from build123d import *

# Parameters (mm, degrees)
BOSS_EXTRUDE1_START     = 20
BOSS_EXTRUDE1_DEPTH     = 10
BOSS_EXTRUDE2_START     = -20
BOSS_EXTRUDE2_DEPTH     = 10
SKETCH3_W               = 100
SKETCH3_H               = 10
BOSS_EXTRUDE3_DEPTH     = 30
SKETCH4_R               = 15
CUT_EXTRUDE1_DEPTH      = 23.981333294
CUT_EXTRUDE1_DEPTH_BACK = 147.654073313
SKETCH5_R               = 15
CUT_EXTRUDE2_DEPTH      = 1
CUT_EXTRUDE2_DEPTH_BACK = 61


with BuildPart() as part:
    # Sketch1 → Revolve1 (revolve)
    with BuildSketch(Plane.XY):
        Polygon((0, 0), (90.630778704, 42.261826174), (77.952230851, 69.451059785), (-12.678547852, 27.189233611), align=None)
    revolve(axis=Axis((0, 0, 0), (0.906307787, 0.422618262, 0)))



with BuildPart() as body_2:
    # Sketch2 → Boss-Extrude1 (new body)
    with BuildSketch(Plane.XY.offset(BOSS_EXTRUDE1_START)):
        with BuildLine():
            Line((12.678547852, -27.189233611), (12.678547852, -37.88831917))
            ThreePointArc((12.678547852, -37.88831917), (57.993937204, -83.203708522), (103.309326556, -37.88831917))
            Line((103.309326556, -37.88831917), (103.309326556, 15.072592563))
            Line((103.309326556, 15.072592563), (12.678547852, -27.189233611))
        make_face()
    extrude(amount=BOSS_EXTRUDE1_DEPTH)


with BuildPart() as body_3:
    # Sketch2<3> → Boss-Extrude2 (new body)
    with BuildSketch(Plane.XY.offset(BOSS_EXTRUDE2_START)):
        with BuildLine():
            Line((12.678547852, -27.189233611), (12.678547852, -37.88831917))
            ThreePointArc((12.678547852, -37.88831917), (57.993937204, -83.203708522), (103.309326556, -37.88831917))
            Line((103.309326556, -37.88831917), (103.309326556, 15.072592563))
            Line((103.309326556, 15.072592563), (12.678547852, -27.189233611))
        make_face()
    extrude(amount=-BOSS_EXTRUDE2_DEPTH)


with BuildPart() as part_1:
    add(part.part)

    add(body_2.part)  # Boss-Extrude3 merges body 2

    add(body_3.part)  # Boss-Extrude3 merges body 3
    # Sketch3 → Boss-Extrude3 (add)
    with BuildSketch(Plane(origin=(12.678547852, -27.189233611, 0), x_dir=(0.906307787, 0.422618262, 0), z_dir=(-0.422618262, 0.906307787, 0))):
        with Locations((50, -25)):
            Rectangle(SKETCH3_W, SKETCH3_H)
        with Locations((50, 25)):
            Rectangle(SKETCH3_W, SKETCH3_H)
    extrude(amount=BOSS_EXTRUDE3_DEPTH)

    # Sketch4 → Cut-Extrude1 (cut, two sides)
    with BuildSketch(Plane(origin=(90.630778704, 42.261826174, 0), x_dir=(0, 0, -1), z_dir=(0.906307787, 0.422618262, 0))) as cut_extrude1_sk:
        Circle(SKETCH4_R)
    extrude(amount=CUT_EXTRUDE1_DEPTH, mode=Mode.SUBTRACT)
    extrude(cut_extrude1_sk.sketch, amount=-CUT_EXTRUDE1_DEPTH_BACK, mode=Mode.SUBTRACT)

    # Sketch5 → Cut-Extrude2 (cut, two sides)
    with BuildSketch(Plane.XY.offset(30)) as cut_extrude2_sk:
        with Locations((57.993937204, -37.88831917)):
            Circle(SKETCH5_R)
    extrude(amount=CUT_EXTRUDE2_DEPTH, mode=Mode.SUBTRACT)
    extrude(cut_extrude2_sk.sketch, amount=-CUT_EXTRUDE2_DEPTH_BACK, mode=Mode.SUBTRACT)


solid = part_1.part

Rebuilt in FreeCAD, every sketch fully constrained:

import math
import FreeCAD as App
import Part
import Sketcher
Q = App.Units.Quantity

doc = App.newDocument("Part")
params = doc.addObject("Spreadsheet::Sheet", "Params")
for row, (alias, value) in enumerate([
    ("sketch1_length", "100 mm"),
    ("sketch1_length2", "30 mm"),
    ("revolution_angle", "360 deg"),
    ("sketch2_length", "100 mm"),
    ("pad1_length", "10 mm"),
    ("sketch3_length", "100 mm"),
    ("pad2_length", "10 mm"),
    ("sketch4_width", "100 mm"),
    ("sketch4_height", "10 mm"),
    ("pad3_length", "30 mm"),
    ("sketch5_diameter", "30 mm"),
    ("sketch6_diameter", "30 mm"),
], start=1):
    params.set(f"A{row}", alias)
    params.set(f"B{row}", "=" + value)
    params.setAlias(f"B{row}", alias)

body = doc.addObject("PartDesign::Body", "Body")

# Sketch on XY plane
sketch1 = body.newObject("Sketcher::SketchObject", "Sketch")
sketch1.AttachmentSupport = (doc.getObject("XY_Plane"), [""])
sketch1.MapMode = "FlatFace"
sketch1.addGeometry(Part.LineSegment(App.Vector(0, 0, 0), App.Vector(91, 42, 0)), False)
sketch1.addGeometry(Part.LineSegment(App.Vector(91, 42, 0), App.Vector(78, 69, 0)), False)
sketch1.addGeometry(Part.LineSegment(App.Vector(78, 69, 0), App.Vector(-13, 27, 0)), False)
sketch1.addGeometry(Part.LineSegment(App.Vector(-13, 27, 0), App.Vector(0, 0, 0)), False)
sketch1.addGeometry(Part.LineSegment(App.Vector(0, 0, 0), App.Vector(91, 42, 0)), True)  # axis
sketch1.addConstraint(Sketcher.Constraint("Coincident", 0, 2, 1, 1))
sketch1.addConstraint(Sketcher.Constraint("Coincident", 1, 2, 2, 1))
sketch1.addConstraint(Sketcher.Constraint("Coincident", 2, 2, 3, 1))
sketch1.addConstraint(Sketcher.Constraint("Coincident", 3, 2, 0, 1))
sketch1.addConstraint(Sketcher.Constraint("Coincident", 3, 2, -1, 1))
sketch1.addConstraint(Sketcher.Constraint("Coincident", 4, 1, -1, 1))
sketch1.addConstraint(Sketcher.Constraint("Coincident", 4, 2, 0, 2))
sketch1.addConstraint(Sketcher.Constraint("Perpendicular", 0, 1))
sketch1.addConstraint(Sketcher.Constraint("Perpendicular", 1, 2))
sketch1.addConstraint(Sketcher.Constraint("Perpendicular", 2, 3))
sketch1.addConstraint(Sketcher.Constraint("Angle", 0, Q("25 deg")))
sketch1.addConstraint(Sketcher.Constraint("Distance", 0, 100.0))
sketch1.addConstraint(Sketcher.Constraint("Distance", 1, 30.0))
sketch1.setExpression("Constraints[11]", "Params.sketch1_length")
sketch1.setExpression("Constraints[12]", "Params.sketch1_length2")
revolution = body.newObject("PartDesign::Revolution", "Revolution")
revolution.Profile = sketch1
revolution.ReferenceAxis = (sketch1, ["Axis0"])
revolution.setExpression("Angle", "Params.revolution_angle")
body2 = doc.addObject("PartDesign::Body", "Body001")

# Sketch on XY plane
sketch2 = body2.newObject("Sketcher::SketchObject", "Sketch001")
sketch2.AttachmentSupport = (doc.getObject("XY_Plane001"), [""])
sketch2.MapMode = "FlatFace"
sketch2.AttachmentOffset = App.Placement(App.Vector(0, 0, 20), App.Rotation())
sketch2.addGeometry(Part.LineSegment(App.Vector(13, -27, 0), App.Vector(13, -38, 0)), False)
sketch2.addGeometry(Part.ArcOfCircle(Part.Circle(App.Vector(58, -38, 0), App.Vector(0, 0, 1), 45), math.radians(180), math.radians(360)), False)
sketch2.addGeometry(Part.LineSegment(App.Vector(103, -38, 0), App.Vector(103, 15, 0)), False)
sketch2.addGeometry(Part.LineSegment(App.Vector(103, 15, 0), App.Vector(13, -27, 0)), False)
sketch2.addConstraint(Sketcher.Constraint("Tangent", 0, 2, 1, 1))
sketch2.addConstraint(Sketcher.Constraint("Tangent", 1, 2, 2, 1))
sketch2.addConstraint(Sketcher.Constraint("Coincident", 2, 2, 3, 1))
sketch2.addConstraint(Sketcher.Constraint("Coincident", 3, 2, 0, 1))
sketch2.addConstraint(Sketcher.Constraint("Vertical", 0))
sketch2.addConstraint(Sketcher.Constraint("Vertical", 2))
sketch2.addConstraint(Sketcher.Constraint("Angle", 3, Q("-155 deg")))
sketch2.addConstraint(Sketcher.Constraint("Distance", 3, 100.0))
sketch2.addConstraint(Sketcher.Constraint("DistanceY", 2, 1, 2, 2, 52.960912))
sketch2.addConstraint(Sketcher.Constraint("DistanceY", 1, 3, -1, 1, 37.888319))
sketch2.addConstraint(Sketcher.Constraint("DistanceX", -1, 1, 1, 3, 57.993937))
sketch2.setExpression("Constraints[7]", "Params.sketch2_length")
pad1 = body2.newObject("PartDesign::Pad", "Pad")
pad1.Profile = sketch2
pad1.setExpression("Length", "Params.pad1_length")
body3 = doc.addObject("PartDesign::Body", "Body002")

# Sketch on XY plane
sketch3 = body3.newObject("Sketcher::SketchObject", "Sketch002")
sketch3.AttachmentSupport = (doc.getObject("XY_Plane002"), [""])
sketch3.MapMode = "FlatFace"
sketch3.AttachmentOffset = App.Placement(App.Vector(0, 0, -20), App.Rotation())
sketch3.addGeometry(Part.LineSegment(App.Vector(13, -27, 0), App.Vector(13, -38, 0)), False)
sketch3.addGeometry(Part.ArcOfCircle(Part.Circle(App.Vector(58, -38, 0), App.Vector(0, 0, 1), 45), math.radians(180), math.radians(360)), False)
sketch3.addGeometry(Part.LineSegment(App.Vector(103, -38, 0), App.Vector(103, 15, 0)), False)
sketch3.addGeometry(Part.LineSegment(App.Vector(103, 15, 0), App.Vector(13, -27, 0)), False)
sketch3.addConstraint(Sketcher.Constraint("Tangent", 0, 2, 1, 1))
sketch3.addConstraint(Sketcher.Constraint("Tangent", 1, 2, 2, 1))
sketch3.addConstraint(Sketcher.Constraint("Coincident", 2, 2, 3, 1))
sketch3.addConstraint(Sketcher.Constraint("Coincident", 3, 2, 0, 1))
sketch3.addConstraint(Sketcher.Constraint("Vertical", 0))
sketch3.addConstraint(Sketcher.Constraint("Vertical", 2))
sketch3.addConstraint(Sketcher.Constraint("Angle", 3, Q("-155 deg")))
sketch3.addConstraint(Sketcher.Constraint("Distance", 3, 100.0))
sketch3.addConstraint(Sketcher.Constraint("DistanceY", 2, 1, 2, 2, 52.960912))
sketch3.addConstraint(Sketcher.Constraint("DistanceY", 1, 3, -1, 1, 37.888319))
sketch3.addConstraint(Sketcher.Constraint("DistanceX", -1, 1, 1, 3, 57.993937))
sketch3.setExpression("Constraints[7]", "Params.sketch3_length")
pad2 = body3.newObject("PartDesign::Pad", "Pad001")
pad2.Profile = sketch3
pad2.setExpression("Length", "Params.pad2_length")
pad2.Reversed = True
body.AllowCompound = True
doc.recompute()

boolean = body.newObject("PartDesign::Boolean", "Boolean")
boolean.Type = "Fuse"
boolean.addObjects([body2])
doc.recompute()

boolean2 = body.newObject("PartDesign::Boolean", "Boolean001")
boolean2.Type = "Fuse"
boolean2.addObjects([body3])

# Sketch on an angled plane
sketch4 = body.newObject("Sketcher::SketchObject", "Sketch003")
sketch4.Placement = App.Placement(App.Vector(12.678548, -27.189234, 0), App.Rotation(App.Vector(0.906307787, 0.422618262, 0), App.Vector(0, 0, -1), App.Vector(-0.422618262, 0.906307787, 0), "ZXY"))
sketch4.addGeometry(Part.LineSegment(App.Vector(0, -20, 0), App.Vector(0, -30, 0)), False)
sketch4.addGeometry(Part.LineSegment(App.Vector(0, -30, 0), App.Vector(100, -30, 0)), False)
sketch4.addGeometry(Part.LineSegment(App.Vector(100, -30, 0), App.Vector(100, -20, 0)), False)
sketch4.addGeometry(Part.LineSegment(App.Vector(100, -20, 0), App.Vector(0, -20, 0)), False)
sketch4.addGeometry(Part.LineSegment(App.Vector(0, 30, 0), App.Vector(0, 20, 0)), False)
sketch4.addGeometry(Part.LineSegment(App.Vector(0, 20, 0), App.Vector(100, 20, 0)), False)
sketch4.addGeometry(Part.LineSegment(App.Vector(100, 20, 0), App.Vector(100, 30, 0)), False)
sketch4.addGeometry(Part.LineSegment(App.Vector(100, 30, 0), App.Vector(0, 30, 0)), False)
sketch4.addConstraint(Sketcher.Constraint("Coincident", 0, 2, 1, 1))
sketch4.addConstraint(Sketcher.Constraint("Coincident", 1, 2, 2, 1))
sketch4.addConstraint(Sketcher.Constraint("Coincident", 2, 2, 3, 1))
sketch4.addConstraint(Sketcher.Constraint("Coincident", 3, 2, 0, 1))
sketch4.addConstraint(Sketcher.Constraint("Coincident", 4, 2, 5, 1))
sketch4.addConstraint(Sketcher.Constraint("Coincident", 5, 2, 6, 1))
sketch4.addConstraint(Sketcher.Constraint("Coincident", 6, 2, 7, 1))
sketch4.addConstraint(Sketcher.Constraint("Coincident", 7, 2, 4, 1))
sketch4.addConstraint(Sketcher.Constraint("Vertical", 0))
sketch4.addConstraint(Sketcher.Constraint("Horizontal", 1))
sketch4.addConstraint(Sketcher.Constraint("Vertical", 2))
sketch4.addConstraint(Sketcher.Constraint("Horizontal", 3))
sketch4.addConstraint(Sketcher.Constraint("Vertical", 4))
sketch4.addConstraint(Sketcher.Constraint("Horizontal", 5))
sketch4.addConstraint(Sketcher.Constraint("Vertical", 6))
sketch4.addConstraint(Sketcher.Constraint("Horizontal", 7))
sketch4.addConstraint(Sketcher.Constraint("Symmetric", 3, 2, 4, 2, -1, 1))
sketch4.addConstraint(Sketcher.Constraint("Symmetric", 1, 2, 6, 2, -1))
sketch4.addConstraint(Sketcher.Constraint("PointOnObject", 0, 2, -2))
sketch4.addConstraint(Sketcher.Constraint("DistanceX", 1, 1, 1, 2, 100.0))
sketch4.addConstraint(Sketcher.Constraint("DistanceY", 0, 2, 0, 1, 10.0))
sketch4.addConstraint(Sketcher.Constraint("DistanceY", 0, 2, -1, 1, 30.0))
sketch4.setExpression("Constraints[19]", "Params.sketch4_width")
sketch4.setExpression("Constraints[20]", "Params.sketch4_height")
pad3 = body.newObject("PartDesign::Pad", "Pad002")
pad3.Profile = sketch4
pad3.setExpression("Length", "Params.pad3_length")

# Sketch on an angled plane
sketch5 = body.newObject("Sketcher::SketchObject", "Sketch004")
sketch5.Placement = App.Placement(App.Vector(90.630779, 42.261826, 0), App.Rotation(App.Vector(0, 0, -1), App.Vector(-0.422618262, 0.906307787, 0), App.Vector(0.906307787, 0.422618262, 0), "ZXY"))
sketch5.addGeometry(Part.Circle(App.Vector(0, 0, 0), App.Vector(0, 0, 1), 15), False)
sketch5.addConstraint(Sketcher.Constraint("Coincident", 0, 3, -1, 1))
sketch5.addConstraint(Sketcher.Constraint("Diameter", 0, 30.0))
sketch5.setExpression("Constraints[1]", "Params.sketch5_diameter")
pocket1 = body.newObject("PartDesign::Pocket", "Pocket")
pocket1.Profile = sketch5
pocket1.Type = "ThroughAll"
pocket1.Midplane = True

# Sketch on XY plane
sketch6 = body.newObject("Sketcher::SketchObject", "Sketch005")
sketch6.AttachmentSupport = (doc.getObject("XY_Plane"), [""])
sketch6.MapMode = "FlatFace"
sketch6.AttachmentOffset = App.Placement(App.Vector(0, 0, 30), App.Rotation())
sketch6.addGeometry(Part.Circle(App.Vector(58, -38, 0), App.Vector(0, 0, 1), 15), False)
sketch6.addConstraint(Sketcher.Constraint("Diameter", 0, 30.0))
sketch6.addConstraint(Sketcher.Constraint("DistanceY", 0, 3, -1, 1, 37.888319))
sketch6.addConstraint(Sketcher.Constraint("DistanceX", -1, 1, 0, 3, 57.993937))
sketch6.setExpression("Constraints[0]", "Params.sketch6_diameter")
pocket2 = body.newObject("PartDesign::Pocket", "Pocket001")
pocket2.Profile = sketch6
pocket2.Type = "ThroughAll"
pocket2.Midplane = True

doc.recompute()
